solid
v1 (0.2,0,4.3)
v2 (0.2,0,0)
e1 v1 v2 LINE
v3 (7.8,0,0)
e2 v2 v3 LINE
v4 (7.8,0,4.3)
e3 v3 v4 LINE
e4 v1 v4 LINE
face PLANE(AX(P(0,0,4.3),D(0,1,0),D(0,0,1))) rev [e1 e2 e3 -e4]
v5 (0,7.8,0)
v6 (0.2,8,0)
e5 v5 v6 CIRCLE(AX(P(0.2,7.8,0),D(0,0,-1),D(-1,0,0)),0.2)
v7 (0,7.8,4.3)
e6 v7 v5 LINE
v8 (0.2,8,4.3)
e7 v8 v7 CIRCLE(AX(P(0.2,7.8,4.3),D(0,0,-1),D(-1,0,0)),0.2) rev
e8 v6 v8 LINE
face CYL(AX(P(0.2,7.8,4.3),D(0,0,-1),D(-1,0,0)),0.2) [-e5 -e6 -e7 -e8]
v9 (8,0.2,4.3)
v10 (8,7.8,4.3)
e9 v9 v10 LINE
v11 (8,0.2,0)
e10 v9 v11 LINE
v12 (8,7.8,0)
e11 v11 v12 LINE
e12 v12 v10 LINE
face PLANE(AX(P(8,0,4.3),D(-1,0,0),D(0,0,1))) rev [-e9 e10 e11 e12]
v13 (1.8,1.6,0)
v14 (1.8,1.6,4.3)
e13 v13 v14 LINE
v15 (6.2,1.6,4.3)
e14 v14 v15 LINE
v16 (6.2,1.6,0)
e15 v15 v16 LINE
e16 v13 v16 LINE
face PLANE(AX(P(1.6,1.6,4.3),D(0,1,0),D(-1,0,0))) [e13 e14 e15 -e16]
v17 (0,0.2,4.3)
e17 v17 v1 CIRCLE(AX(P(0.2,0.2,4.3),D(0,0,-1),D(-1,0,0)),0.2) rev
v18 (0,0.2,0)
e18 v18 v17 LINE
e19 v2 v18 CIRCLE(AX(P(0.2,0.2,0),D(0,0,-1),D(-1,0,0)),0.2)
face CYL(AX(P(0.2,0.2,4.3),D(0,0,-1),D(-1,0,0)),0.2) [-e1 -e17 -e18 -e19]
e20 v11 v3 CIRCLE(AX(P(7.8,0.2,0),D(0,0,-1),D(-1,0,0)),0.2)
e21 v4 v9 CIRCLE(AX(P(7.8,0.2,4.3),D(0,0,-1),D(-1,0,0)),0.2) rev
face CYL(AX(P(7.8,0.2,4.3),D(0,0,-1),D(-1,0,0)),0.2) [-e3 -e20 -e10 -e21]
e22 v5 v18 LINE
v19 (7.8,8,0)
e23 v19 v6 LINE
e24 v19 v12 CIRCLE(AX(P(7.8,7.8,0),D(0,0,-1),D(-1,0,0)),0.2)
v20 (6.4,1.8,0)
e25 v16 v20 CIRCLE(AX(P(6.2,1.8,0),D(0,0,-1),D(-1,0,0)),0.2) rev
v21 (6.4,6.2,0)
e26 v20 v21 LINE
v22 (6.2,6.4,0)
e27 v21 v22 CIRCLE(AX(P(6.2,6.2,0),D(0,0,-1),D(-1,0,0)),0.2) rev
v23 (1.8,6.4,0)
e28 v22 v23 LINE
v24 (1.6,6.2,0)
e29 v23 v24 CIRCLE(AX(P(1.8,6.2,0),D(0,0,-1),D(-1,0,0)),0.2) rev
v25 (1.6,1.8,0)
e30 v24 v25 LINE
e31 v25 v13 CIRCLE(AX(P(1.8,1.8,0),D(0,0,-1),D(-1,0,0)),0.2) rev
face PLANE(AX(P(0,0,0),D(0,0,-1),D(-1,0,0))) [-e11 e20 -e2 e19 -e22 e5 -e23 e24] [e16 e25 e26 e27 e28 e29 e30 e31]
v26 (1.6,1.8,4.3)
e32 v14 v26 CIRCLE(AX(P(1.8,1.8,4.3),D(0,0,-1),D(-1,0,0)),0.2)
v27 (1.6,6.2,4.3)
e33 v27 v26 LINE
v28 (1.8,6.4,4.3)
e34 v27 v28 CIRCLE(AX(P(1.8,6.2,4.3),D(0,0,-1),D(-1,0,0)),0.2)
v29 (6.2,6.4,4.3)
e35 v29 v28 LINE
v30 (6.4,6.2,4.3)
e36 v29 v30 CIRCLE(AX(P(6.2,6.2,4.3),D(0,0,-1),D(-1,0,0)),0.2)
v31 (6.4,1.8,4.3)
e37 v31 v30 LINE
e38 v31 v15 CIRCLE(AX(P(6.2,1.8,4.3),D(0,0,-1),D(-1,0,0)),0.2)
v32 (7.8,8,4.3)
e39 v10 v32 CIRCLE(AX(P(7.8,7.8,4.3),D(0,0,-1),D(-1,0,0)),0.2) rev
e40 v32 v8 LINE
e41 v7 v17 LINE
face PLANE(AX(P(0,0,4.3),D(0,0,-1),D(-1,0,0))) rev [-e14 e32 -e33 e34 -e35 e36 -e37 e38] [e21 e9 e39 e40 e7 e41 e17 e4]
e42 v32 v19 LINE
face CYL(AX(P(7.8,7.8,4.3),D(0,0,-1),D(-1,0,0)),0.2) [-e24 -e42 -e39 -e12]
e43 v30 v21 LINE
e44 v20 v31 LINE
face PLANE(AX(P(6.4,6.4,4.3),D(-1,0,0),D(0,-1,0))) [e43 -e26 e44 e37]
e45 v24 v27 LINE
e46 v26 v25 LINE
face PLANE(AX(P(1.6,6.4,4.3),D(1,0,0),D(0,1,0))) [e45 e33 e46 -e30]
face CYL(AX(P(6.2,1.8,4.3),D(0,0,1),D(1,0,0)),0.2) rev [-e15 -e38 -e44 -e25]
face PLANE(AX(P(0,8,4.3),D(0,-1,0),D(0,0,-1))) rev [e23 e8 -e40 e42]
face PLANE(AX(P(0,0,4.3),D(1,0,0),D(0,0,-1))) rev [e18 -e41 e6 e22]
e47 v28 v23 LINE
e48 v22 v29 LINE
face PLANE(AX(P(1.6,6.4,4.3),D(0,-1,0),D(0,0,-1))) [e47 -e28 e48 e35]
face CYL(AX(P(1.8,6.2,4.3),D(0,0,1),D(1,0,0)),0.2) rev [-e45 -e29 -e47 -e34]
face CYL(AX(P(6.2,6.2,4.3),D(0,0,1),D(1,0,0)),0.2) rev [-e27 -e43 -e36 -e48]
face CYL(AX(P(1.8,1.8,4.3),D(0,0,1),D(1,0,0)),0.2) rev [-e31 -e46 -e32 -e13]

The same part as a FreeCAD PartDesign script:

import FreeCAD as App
import Part
import Sketcher

V = App.Vector
Q = App.Units.Quantity


def edges_at(feature, points):
    """Names of the edges that pass closest to the given points."""
    edges = feature.Shape.Edges
    near = lambda p: min(range(len(edges)), key=lambda i: edges[i].distToShape(Part.Vertex(*p))[0])
    return sorted({f"Edge{near(p) + 1}" for p in points})

doc = App.newDocument("Part")
params = doc.addObject("Spreadsheet::Sheet", "Params")
for row, (alias, value) in enumerate([
    ("sketch1_width", "8 mm"),
    ("sketch1_width2", "4.8 mm"),
    ("pad1_length", "4.3 mm"),
    ("fillet_radius", "0.2 mm"),
], start=1):
    params.set(f"A{row}", alias)
    params.set(f"B{row}", "=" + value)
    params.setAlias(f"B{row}", alias)

body = doc.addObject("PartDesign::Body", "Body")

sketch1 = body.newObject("Sketcher::SketchObject", "Sketch")
sketch1.AttachmentSupport = (doc.getObject("XY_Plane"), [""])
sketch1.MapMode = "FlatFace"
sketch1.addGeometry(Part.LineSegment(V(0, 8, 0), V(0, 0, 0)), False)
sketch1.addGeometry(Part.LineSegment(V(0, 0, 0), V(8, 0, 0)), False)
sketch1.addGeometry(Part.LineSegment(V(8, 0, 0), V(8, 8, 0)), False)
sketch1.addGeometry(Part.LineSegment(V(8, 8, 0), V(0, 8, 0)), False)
sketch1.addGeometry(Part.LineSegment(V(6.4, 1.6, 0), V(1.6, 1.6, 0)), False)
sketch1.addGeometry(Part.LineSegment(V(1.6, 1.6, 0), V(1.6, 6.4, 0)), False)
sketch1.addGeometry(Part.LineSegment(V(1.6, 6.4, 0), V(6.4, 6.4, 0)), False)
sketch1.addGeometry(Part.LineSegment(V(6.4, 6.4, 0), V(6.4, 1.6, 0)), False)
sketch1.addConstraint(Sketcher.Constraint("Coincident", 0, 2, 1, 1))
sketch1.addConstraint(Sketcher.Constraint("Coincident", 1, 2, 2, 1))
sketch1.addConstraint(Sketcher.Constraint("Coincident", 2, 2, 3, 1))
sketch1.addConstraint(Sketcher.Constraint("Coincident", 3, 2, 0, 1))
sketch1.addConstraint(Sketcher.Constraint("Coincident", 4, 2, 5, 1))
sketch1.addConstraint(Sketcher.Constraint("Coincident", 5, 2, 6, 1))
sketch1.addConstraint(Sketcher.Constraint("Coincident", 6, 2, 7, 1))
sketch1.addConstraint(Sketcher.Constraint("Coincident", 7, 2, 4, 1))
sketch1.addConstraint(Sketcher.Constraint("Vertical", 0))
sketch1.addConstraint(Sketcher.Constraint("Horizontal", 1))
sketch1.addConstraint(Sketcher.Constraint("Vertical", 2))
sketch1.addConstraint(Sketcher.Constraint("Horizontal", 3))
sketch1.addConstraint(Sketcher.Constraint("Horizontal", 4))
sketch1.addConstraint(Sketcher.Constraint("Vertical", 5))
sketch1.addConstraint(Sketcher.Constraint("Horizontal", 6))
sketch1.addConstraint(Sketcher.Constraint("Vertical", 7))
sketch1.addConstraint(Sketcher.Constraint("Coincident", 0, 2, -1, 1))
sketch1.addConstraint(Sketcher.Constraint("Equal", 3, 0))
sketch1.addConstraint(Sketcher.Constraint("Equal", 6, 5))
sketch1.addConstraint(Sketcher.Constraint("DistanceX", 1, 1, 1, 2, Q("8 mm")))
sketch1.addConstraint(Sketcher.Constraint("DistanceX", 4, 2, 4, 1, Q("4.8 mm")))
sketch1.addConstraint(Sketcher.Constraint("DistanceX", -1, 1, 4, 2, Q("1.6 mm")))
sketch1.addConstraint(Sketcher.Constraint("DistanceY", -1, 1, 4, 2, Q("1.6 mm")))
sketch1.setExpression("Constraints[19]", "Params.sketch1_width")
sketch1.setExpression("Constraints[20]", "Params.sketch1_width2")
pad1 = body.newObject("PartDesign::Pad", "Pad")
pad1.Profile = sketch1
pad1.setExpression("Length", "Params.pad1_length")
doc.recompute()

fillet = body.newObject("PartDesign::Fillet", "Fillet")
fillet.Base = (pad1, edges_at(pad1, [
    (1.6, 6.4, 2.15),
    (1.6, 1.6, 2.15),
    (6.4, 1.6, 2.15),
    (6.4, 6.4, 2.15),
    (0, 8, 2.15),
    (8, 8, 2.15),
    (8, 0, 2.15),
    (0, 0, 2.15),
]))
fillet.setExpression("Radius", "Params.fillet_radius")

doc.recompute()
